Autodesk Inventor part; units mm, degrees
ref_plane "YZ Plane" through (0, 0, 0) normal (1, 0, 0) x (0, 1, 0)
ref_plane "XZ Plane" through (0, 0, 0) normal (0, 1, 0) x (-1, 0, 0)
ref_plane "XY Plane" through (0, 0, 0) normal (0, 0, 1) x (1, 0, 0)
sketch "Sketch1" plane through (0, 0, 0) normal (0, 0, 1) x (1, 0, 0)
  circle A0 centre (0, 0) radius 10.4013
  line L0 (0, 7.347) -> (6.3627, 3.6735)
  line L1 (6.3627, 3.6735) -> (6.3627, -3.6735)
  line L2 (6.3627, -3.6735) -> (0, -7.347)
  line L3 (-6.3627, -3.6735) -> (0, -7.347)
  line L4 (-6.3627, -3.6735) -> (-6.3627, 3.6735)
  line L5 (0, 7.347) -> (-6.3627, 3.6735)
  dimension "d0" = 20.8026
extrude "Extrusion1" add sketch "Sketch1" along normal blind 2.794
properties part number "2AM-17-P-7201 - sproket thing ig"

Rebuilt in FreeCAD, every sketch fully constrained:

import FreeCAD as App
import Part
import Sketcher

V = App.Vector
Q = App.Units.Quantity


def add_polygon(sketch, points):
    """Adds a closed chain of lines whose ends are joined by coincident constraints."""
    first, n = sketch.GeometryCount, len(points)
    for a, b in zip(points, points[1:] + points[:1]):
        sketch.addGeometry(Part.LineSegment(App.Vector(*a, 0), App.Vector(*b, 0)), False)
    for i in range(n):
        sketch.addConstraint(Sketcher.Constraint("Coincident", first + i, 2, first + (i + 1) % n, 1))

doc = App.newDocument("Part")
body = doc.addObject("PartDesign::Body", "Body")

sketch1 = body.newObject("Sketcher::SketchObject", "Sketch")
sketch1.AttachmentSupport = (doc.getObject("XY_Plane"), [""])
sketch1.MapMode = "FlatFace"
sketch1.addGeometry(Part.Circle(V(0, 0, 0), V(0, 0, 1), 10), False)
add_polygon(sketch1, [(-6, 4), (0, 7), (6, 4), (6, -4), (0, -7), (-6, -4)])
sketch1.addConstraint([
    Sketcher.Constraint("Vertical", 3),
    Sketcher.Constraint("Vertical", 6),
    Sketcher.Constraint("Coincident", 0, 3, -1, 1),
    Sketcher.Constraint("Symmetric", 1, 2, 4, 2, -1, 1),
    Sketcher.Constraint("Symmetric", 2, 2, 5, 2, -1, 1),
    Sketcher.Constraint("PointOnObject", 1, 2, -2),
    Sketcher.Constraint("Parallel", 1, 4),
    Sketcher.Constraint("Horizontal", 3, 2, 5, 2),
    Sketcher.Constraint("Diameter", 0, Q("0.819 in")),
    Sketcher.Constraint("Angle", 1, Q("30 deg")),
    Sketcher.Constraint("DistanceX", 5, 2, 3, 2, Q("0.501 in")),
    Sketcher.Constraint("DistanceY", 3, 2, 3, 1, 7.347),
])
pad1 = body.newObject("PartDesign::Pad", "Pad")
pad1.Profile = sketch1
pad1.Length = Q("0.11 in")

doc.recompute()
